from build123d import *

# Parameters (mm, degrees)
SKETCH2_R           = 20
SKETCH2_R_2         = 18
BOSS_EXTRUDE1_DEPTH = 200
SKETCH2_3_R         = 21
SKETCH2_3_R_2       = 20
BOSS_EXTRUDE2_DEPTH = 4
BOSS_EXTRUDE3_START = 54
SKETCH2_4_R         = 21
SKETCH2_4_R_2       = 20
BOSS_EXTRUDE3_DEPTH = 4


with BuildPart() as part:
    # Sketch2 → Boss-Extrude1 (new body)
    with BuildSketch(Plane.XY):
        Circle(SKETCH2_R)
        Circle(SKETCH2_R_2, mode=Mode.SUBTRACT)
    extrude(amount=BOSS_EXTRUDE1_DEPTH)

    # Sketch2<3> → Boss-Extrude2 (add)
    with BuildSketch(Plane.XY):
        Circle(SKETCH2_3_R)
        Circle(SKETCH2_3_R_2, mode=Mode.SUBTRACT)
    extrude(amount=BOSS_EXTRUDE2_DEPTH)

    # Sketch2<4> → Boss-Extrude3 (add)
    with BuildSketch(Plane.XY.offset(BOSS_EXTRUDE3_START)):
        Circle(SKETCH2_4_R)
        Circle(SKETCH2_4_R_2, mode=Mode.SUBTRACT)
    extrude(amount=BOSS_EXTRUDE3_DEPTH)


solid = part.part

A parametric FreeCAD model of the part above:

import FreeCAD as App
import Part
import Sketcher

V = App.Vector

doc = App.newDocument("Part")
body = doc.addObject("PartDesign::Body", "Body")

# Sketch on XY plane
sketch1 = body.newObject("Sketcher::SketchObject", "Sketch")
sketch1.AttachmentSupport = (doc.getObject("XY_Plane"), [""])
sketch1.MapMode = "FlatFace"
sketch1.addGeometry(Part.Circle(V(0, 0, 0), V(0, 0, 1), 20), False)
sketch1.addGeometry(Part.Circle(V(0, 0, 0), V(0, 0, 1), 18), False)
sketch1.addConstraint(Sketcher.Constraint("Coincident", 0, 3, -1, 1))
sketch1.addConstraint(Sketcher.Constraint("Coincident", 1, 3, -1, 1))
sketch1.addConstraint(Sketcher.Constraint("Diameter", 0, 40.0))
sketch1.addConstraint(Sketcher.Constraint("Diameter", 1, 36.0))
pad1 = body.newObject("PartDesign::Pad", "Pad")
pad1.Profile = sketch1
pad1.Length = 200

# Sketch on XY plane
sketch2 = body.newObject("Sketcher::SketchObject", "Sketch001")
sketch2.AttachmentSupport = (doc.getObject("XY_Plane"), [""])
sketch2.MapMode = "FlatFace"
sketch2.addGeometry(Part.Circle(V(0, 0, 0), V(0, 0, 1), 21), False)
sketch2.addGeometry(Part.Circle(V(0, 0, 0), V(0, 0, 1), 20), False)
sketch2.addConstraint(Sketcher.Constraint("Coincident", 0, 3, -1, 1))
sketch2.addConstraint(Sketcher.Constraint("Coincident", 1, 3, -1, 1))
sketch2.addConstraint(Sketcher.Constraint("Diameter", 0, 42.0))
sketch2.addConstraint(Sketcher.Constraint("Diameter", 1, 40.0))
pad2 = body.newObject("PartDesign::Pad", "Pad001")
pad2.Profile = sketch2
pad2.Length = 4

# Sketch on XY plane
sketch3 = body.newObject("Sketcher::SketchObject", "Sketch002")
sketch3.AttachmentSupport = (doc.getObject("XY_Plane"), [""])
sketch3.MapMode = "FlatFace"
sketch3.AttachmentOffset = App.Placement(V(0, 0, 54), App.Rotation())
sketch3.addGeometry(Part.Circle(V(0, 0, 0), V(0, 0, 1), 21), False)
sketch3.addGeometry(Part.Circle(V(0, 0, 0), V(0, 0, 1), 20), False)
sketch3.addConstraint(Sketcher.Constraint("Coincident", 0, 3, -1, 1))
sketch3.addConstraint(Sketcher.Constraint("Coincident", 1, 3, -1, 1))
sketch3.addConstraint(Sketcher.Constraint("Diameter", 0, 42.0))
sketch3.addConstraint(Sketcher.Constraint("Diameter", 1, 40.0))
pad3 = body.newObject("PartDesign::Pad", "Pad002")
pad3.Profile = sketch3
pad3.Length = 4

doc.recompute()
